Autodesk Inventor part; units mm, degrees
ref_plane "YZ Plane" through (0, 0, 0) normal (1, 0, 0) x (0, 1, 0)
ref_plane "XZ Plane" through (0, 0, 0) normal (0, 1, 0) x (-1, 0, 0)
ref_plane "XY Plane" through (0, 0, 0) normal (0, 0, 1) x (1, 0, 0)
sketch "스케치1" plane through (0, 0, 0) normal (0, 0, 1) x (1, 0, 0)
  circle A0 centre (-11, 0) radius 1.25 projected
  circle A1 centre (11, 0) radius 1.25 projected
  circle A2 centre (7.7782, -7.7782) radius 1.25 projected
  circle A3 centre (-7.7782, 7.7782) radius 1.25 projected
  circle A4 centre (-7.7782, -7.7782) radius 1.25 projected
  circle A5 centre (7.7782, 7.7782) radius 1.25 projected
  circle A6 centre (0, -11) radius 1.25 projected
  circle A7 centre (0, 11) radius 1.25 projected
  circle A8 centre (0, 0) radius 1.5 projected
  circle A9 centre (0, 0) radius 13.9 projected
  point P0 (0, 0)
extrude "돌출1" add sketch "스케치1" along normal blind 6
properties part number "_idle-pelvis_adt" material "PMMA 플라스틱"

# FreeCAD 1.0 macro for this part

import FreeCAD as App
import Part
import Sketcher

V = App.Vector

doc = App.newDocument("Part")
body = doc.addObject("PartDesign::Body", "Body")

sketch1 = body.newObject("Sketcher::SketchObject", "Sketch")
sketch1.AttachmentSupport = (doc.getObject("XY_Plane"), [""])
sketch1.MapMode = "FlatFace"
sketch1.addGeometry([
    Part.Circle(V(0, 0, 0), V(0, 0, 1), 13.9),
    Part.Circle(V(-7.7782, -7.7782, 0), V(0, 0, 1), 1.25),
    Part.Circle(V(0, -11, 0), V(0, 0, 1), 1.25),
    Part.Circle(V(7.7782, -7.7782, 0), V(0, 0, 1), 1.25),
    Part.Circle(V(-11, 0, 0), V(0, 0, 1), 1.25),
    Part.Circle(V(-7.7782, 7.7782, 0), V(0, 0, 1), 1.25),
    Part.Circle(V(0, 0, 0), V(0, 0, 1), 1.5),
    Part.Circle(V(11, 0, 0), V(0, 0, 1), 1.25),
    Part.Circle(V(0, 11, 0), V(0, 0, 1), 1.25),
    Part.Circle(V(7.7782, 7.7782, 0), V(0, 0, 1), 1.25),
], False)
sketch1.addConstraint([
    Sketcher.Constraint("Coincident", 0, 3, -1, 1),
    Sketcher.Constraint("Coincident", 6, 3, -1, 1),
    Sketcher.Constraint("Equal", 1, 2),
    Sketcher.Constraint("Equal", 2, 3),
    Sketcher.Constraint("Equal", 3, 4),
    Sketcher.Constraint("Equal", 4, 5),
    Sketcher.Constraint("Equal", 5, 7),
    Sketcher.Constraint("Equal", 7, 8),
    Sketcher.Constraint("Equal", 8, 9),
    Sketcher.Constraint("Symmetric", 3, 3, 5, 3, -1, 1),
    Sketcher.Constraint("Symmetric", 4, 3, 7, 3, -1, 1),
    Sketcher.Constraint("Symmetric", 2, 3, 8, 3, -1, 1),
    Sketcher.Constraint("Symmetric", 1, 3, 9, 3, -1, 1),
    Sketcher.Constraint("Symmetric", 1, 3, 3, 3, -2),
    Sketcher.Constraint("PointOnObject", 2, 3, -2),
    Sketcher.Constraint("PointOnObject", 4, 3, -1),
    Sketcher.Constraint("Diameter", 6, 3.0),
    Sketcher.Constraint("Diameter", 0, 27.8),
    Sketcher.Constraint("Diameter", 1, 2.5),
    Sketcher.Constraint("DistanceY", 2, 3, -1, 1, 11.0),
    Sketcher.Constraint("DistanceX", 4, 3, -1, 1, 11.0),
    Sketcher.Constraint("DistanceX", 1, 3, -1, 1, 7.7782),
    Sketcher.Constraint("DistanceY", 1, 3, -1, 1, 7.7782),
])
pad1 = body.newObject("PartDesign::Pad", "Pad")
pad1.Profile = sketch1
pad1.Length = 6

doc.recompute()
